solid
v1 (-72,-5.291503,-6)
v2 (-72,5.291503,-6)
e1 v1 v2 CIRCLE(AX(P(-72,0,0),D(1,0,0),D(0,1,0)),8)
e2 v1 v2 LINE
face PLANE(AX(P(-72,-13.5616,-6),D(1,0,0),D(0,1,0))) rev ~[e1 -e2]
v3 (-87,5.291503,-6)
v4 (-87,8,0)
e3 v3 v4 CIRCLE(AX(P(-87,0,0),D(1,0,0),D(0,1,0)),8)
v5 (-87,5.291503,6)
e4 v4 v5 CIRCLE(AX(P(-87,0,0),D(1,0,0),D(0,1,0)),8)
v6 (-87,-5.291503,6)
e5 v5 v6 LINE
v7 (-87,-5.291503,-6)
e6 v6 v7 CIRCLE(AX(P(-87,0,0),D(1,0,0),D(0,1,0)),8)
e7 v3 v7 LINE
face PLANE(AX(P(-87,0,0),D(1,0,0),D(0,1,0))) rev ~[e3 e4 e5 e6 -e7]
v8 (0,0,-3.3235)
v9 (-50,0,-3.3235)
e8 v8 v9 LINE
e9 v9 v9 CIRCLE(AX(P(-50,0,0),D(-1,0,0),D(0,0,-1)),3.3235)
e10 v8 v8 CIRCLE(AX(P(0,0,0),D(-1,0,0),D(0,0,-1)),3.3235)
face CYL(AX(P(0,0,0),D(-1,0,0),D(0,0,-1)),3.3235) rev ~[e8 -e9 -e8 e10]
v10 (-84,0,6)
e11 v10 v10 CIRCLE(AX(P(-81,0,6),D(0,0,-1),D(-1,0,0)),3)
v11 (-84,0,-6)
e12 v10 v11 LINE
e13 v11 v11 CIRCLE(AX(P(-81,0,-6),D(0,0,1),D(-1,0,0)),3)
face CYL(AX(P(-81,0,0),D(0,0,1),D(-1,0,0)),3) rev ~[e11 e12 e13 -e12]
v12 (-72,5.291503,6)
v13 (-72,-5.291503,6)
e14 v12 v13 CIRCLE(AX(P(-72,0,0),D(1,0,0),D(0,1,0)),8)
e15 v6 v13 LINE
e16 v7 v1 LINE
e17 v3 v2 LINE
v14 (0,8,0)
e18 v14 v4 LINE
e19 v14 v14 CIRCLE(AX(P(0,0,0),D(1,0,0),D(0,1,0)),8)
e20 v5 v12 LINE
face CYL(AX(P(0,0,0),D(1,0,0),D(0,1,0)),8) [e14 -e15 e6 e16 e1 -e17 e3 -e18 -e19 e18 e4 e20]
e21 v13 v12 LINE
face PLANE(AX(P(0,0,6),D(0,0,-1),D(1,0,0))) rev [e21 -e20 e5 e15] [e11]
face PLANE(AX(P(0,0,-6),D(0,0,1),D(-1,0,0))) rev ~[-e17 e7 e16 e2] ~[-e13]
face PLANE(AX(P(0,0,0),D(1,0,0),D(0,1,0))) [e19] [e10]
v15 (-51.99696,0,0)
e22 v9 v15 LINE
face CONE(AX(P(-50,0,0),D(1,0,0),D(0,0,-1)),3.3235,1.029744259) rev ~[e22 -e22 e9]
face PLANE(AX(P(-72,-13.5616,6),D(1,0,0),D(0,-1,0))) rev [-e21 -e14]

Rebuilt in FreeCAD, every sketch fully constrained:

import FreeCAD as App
import Part
import Sketcher

V = App.Vector

doc = App.newDocument("Part")
params = doc.addObject("Spreadsheet::Sheet", "Params")
for row, (alias, value) in enumerate([
    ("sketch1_diameter", "16 mm"),
    ("pad1_length", "87 mm"),
    ("sketch2_width", "15 mm"),
    ("pocket1_length", "87 mm"),
    ("sketch3_diameter", "6 mm"),
    ("pocket2_length", "20 mm"),
    ("hole_diameter", "6.647 mm"),
    ("hole_depth", "50 mm"),
], start=1):
    params.set(f"A{row}", alias)
    params.set(f"B{row}", "=" + value)
    params.setAlias(f"B{row}", alias)

body = doc.addObject("PartDesign::Body", "Body")

# Sketch on YZ plane
sketch1 = body.newObject("Sketcher::SketchObject", "Sketch")
sketch1.AttachmentSupport = (doc.getObject("YZ_Plane"), [""])
sketch1.MapMode = "FlatFace"
sketch1.addGeometry(Part.Circle(V(0, 0, 0), V(0, 0, 1), 8), False)
sketch1.addConstraint([
    Sketcher.Constraint("Coincident", 0, 3, -1, 1),
    Sketcher.Constraint("Diameter", 0, 16.0),
])
sketch1.setExpression("Constraints[1]", "Params.sketch1_diameter")
pad1 = body.newObject("PartDesign::Pad", "Pad")
pad1.Profile = sketch1
pad1.setExpression("Length", "Params.pad1_length")
pad1.Reversed = True

# Sketch on XY plane
sketch2 = body.newObject("Sketcher::SketchObject", "Sketch001")
sketch2.AttachmentSupport = (doc.getObject("XY_Plane"), [""])
sketch2.MapMode = "FlatFace"
sketch2.AttachmentOffset = App.Placement(V(0, 0, -6), App.Rotation())
sketch2.addGeometry([
    Part.LineSegment(V(-72, -13.5616, 0), V(-72, 14.6866, 0)),
    Part.LineSegment(V(-72, 14.6866, 0), V(-87, 14.6866, 0)),
    Part.LineSegment(V(-87, 14.6866, 0), V(-87, -13.5616, 0)),
    Part.LineSegment(V(-87, -13.5616, 0), V(-72, -13.5616, 0)),
], False)
sketch2.addConstraint([
    Sketcher.Constraint("Coincident", 0, 2, 1, 1),
    Sketcher.Constraint("Coincident", 1, 2, 2, 1),
    Sketcher.Constraint("Coincident", 2, 2, 3, 1),
    Sketcher.Constraint("Coincident", 3, 2, 0, 1),
    Sketcher.Constraint("Vertical", 0),
    Sketcher.Constraint("Horizontal", 1),
    Sketcher.Constraint("Vertical", 2),
    Sketcher.Constraint("Horizontal", 3),
    Sketcher.Constraint("DistanceX", 1, 2, 1, 1, 15.0),
    Sketcher.Constraint("DistanceX", 0, 2, -1, 1, 72.0),
    Sketcher.Constraint("DistanceY", 0, 1, 0, 2, 28.2482),
    Sketcher.Constraint("DistanceY", -1, 1, 0, 2, 14.6866),
])
sketch2.setExpression("Constraints[8]", "Params.sketch2_width")
pocket1 = body.newObject("PartDesign::Pocket", "Pocket")
pocket1.Profile = sketch2
pocket1.setExpression("Length", "Params.pocket1_length")
doc.recompute()

mirrored = body.newObject("PartDesign::Mirrored", "Mirrored")
mirrored.Originals = [pocket1]
mirrored.MirrorPlane = (doc.getObject("XY_Plane"), [""])
body.Tip = mirrored

# Sketch on XY plane
sketch3 = body.newObject("Sketcher::SketchObject", "Sketch002")
sketch3.AttachmentSupport = (doc.getObject("XY_Plane"), [""])
sketch3.MapMode = "FlatFace"
sketch3.addGeometry(Part.Circle(V(-81, 0, 0), V(0, 0, 1), 3), False)
sketch3.addConstraint([
    Sketcher.Constraint("PointOnObject", 0, 3, -1),
    Sketcher.Constraint("Diameter", 0, 6.0),
    Sketcher.Constraint("DistanceX", 0, 3, -1, 1, 81.0),
])
sketch3.setExpression("Constraints[1]", "Params.sketch3_diameter")
pocket2 = body.newObject("PartDesign::Pocket", "Pocket001")
pocket2.Profile = sketch3
pocket2.setExpression("Length", "Params.pocket2_length")
pocket2.Midplane = True

# Sketch on YZ plane
sketch4 = body.newObject("Sketcher::SketchObject", "Sketch003")
sketch4.AttachmentSupport = (doc.getObject("YZ_Plane"), [""])
sketch4.MapMode = "FlatFace"
sketch4.addGeometry(Part.Circle(V(0, 0, 0), V(0, 0, 1), 3.3235), False)
sketch4.addConstraint([
    Sketcher.Constraint("Coincident", 0, 3, -1, 1),
    Sketcher.Constraint("Diameter", 0, 6.647),
])
doc.recompute()
hole = body.newObject("PartDesign::Hole", "Hole")
hole.Profile = sketch4
hole.ThreadType = "None"
hole.setExpression("Diameter", "Params.hole_diameter")
hole.DepthType = "Dimension"
hole.setExpression("Depth", "Params.hole_depth")
hole.DrillPoint = "Angled"
hole.DrillPointAngle = 118

doc.recompute()
